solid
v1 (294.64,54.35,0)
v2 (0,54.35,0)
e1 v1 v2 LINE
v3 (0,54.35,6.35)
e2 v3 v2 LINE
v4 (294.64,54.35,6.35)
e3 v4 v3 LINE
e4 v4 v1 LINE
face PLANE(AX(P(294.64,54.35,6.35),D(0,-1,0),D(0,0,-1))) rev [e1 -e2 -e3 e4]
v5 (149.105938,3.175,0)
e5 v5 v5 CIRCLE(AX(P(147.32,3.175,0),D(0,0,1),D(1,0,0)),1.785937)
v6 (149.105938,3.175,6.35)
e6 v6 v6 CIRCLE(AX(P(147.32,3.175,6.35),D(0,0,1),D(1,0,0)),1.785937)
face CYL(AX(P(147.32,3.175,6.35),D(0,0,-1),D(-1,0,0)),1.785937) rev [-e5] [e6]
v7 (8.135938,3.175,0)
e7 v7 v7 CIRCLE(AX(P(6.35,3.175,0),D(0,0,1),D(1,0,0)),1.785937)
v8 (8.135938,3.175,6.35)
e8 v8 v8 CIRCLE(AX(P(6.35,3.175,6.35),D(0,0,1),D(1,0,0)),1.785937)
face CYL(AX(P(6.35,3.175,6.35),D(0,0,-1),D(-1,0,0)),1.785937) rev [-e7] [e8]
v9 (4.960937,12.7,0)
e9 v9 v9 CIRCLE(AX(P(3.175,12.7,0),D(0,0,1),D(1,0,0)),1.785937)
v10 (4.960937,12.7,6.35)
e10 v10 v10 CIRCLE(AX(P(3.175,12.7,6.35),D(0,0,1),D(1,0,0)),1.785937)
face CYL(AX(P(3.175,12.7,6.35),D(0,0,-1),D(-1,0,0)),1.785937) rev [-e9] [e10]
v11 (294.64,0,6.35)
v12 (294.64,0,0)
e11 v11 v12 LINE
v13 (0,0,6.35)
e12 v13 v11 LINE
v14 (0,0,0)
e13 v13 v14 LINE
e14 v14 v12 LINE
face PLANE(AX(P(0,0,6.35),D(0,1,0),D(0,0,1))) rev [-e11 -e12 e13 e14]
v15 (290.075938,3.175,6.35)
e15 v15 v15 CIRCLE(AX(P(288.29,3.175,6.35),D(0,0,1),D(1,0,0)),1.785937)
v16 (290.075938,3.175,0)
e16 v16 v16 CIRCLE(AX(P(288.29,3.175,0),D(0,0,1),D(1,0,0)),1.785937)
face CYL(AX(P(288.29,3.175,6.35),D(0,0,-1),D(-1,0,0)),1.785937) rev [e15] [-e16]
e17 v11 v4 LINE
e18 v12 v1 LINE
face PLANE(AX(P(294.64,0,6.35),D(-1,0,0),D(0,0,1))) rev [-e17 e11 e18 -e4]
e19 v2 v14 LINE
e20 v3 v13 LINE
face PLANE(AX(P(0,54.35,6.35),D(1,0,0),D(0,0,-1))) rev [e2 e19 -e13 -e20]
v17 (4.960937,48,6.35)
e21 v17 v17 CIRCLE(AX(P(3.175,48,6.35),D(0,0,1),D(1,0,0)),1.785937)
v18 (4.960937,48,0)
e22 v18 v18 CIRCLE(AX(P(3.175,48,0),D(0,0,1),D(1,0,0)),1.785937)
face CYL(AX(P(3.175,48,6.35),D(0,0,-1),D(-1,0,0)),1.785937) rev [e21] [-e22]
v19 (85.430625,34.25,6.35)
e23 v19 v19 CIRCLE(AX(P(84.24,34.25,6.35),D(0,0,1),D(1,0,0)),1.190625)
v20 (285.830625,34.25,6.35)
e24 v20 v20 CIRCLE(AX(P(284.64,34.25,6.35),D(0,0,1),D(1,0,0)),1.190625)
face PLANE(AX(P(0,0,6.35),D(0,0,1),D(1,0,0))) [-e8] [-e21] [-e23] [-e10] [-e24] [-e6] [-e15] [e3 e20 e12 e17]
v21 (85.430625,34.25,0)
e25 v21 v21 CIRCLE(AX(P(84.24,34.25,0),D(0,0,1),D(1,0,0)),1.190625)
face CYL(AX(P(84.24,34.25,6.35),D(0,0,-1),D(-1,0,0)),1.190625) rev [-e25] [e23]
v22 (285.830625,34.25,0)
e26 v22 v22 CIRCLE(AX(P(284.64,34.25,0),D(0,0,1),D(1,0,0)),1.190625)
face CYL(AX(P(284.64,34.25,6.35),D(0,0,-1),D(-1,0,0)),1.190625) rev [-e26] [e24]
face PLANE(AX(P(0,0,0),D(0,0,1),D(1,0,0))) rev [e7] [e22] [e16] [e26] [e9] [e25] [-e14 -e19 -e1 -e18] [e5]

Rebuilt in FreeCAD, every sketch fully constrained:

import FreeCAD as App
import Part
import Sketcher
from FreeCAD import Vector
Q = App.Units.Quantity

doc = App.newDocument("Part")
body = doc.addObject("PartDesign::Body", "Body")

# Sketch on XY plane
sketch1 = body.newObject("Sketcher::SketchObject", "Sketch")
sketch1.AttachmentSupport = (doc.getObject("XY_Plane"), [""])
sketch1.MapMode = "FlatFace"
sketch1.addGeometry([
    Part.LineSegment(Vector(0, 54.4, 0), Vector(0, 0, 0)),  # 0
    Part.LineSegment(Vector(0, 0, 0), Vector(294.6, 0, 0)),  # 1
    Part.LineSegment(Vector(294.6, 0, 0), Vector(294.6, 54.4, 0)),  # 2
    Part.LineSegment(Vector(294.6, 54.4, 0), Vector(0, 54.4, 0)),  # 3
    Part.Circle(Vector(6.3, 3.2, 0), Vector(0, 0, 1), 1.8),  # 4
    Part.Circle(Vector(3.2, 12.7, 0), Vector(0, 0, 1), 1.8),  # 5
    Part.Circle(Vector(147.3, 3.2, 0), Vector(0, 0, 1), 1.8),  # 6
    Part.Circle(Vector(288.3, 3.2, 0), Vector(0, 0, 1), 1.8),  # 7
    Part.Circle(Vector(84.2, 34.2, 0), Vector(0, 0, 1), 1.2),  # 8
    Part.Circle(Vector(3.2, 48, 0), Vector(0, 0, 1), 1.8),  # 9
    Part.Circle(Vector(284.6, 34.2, 0), Vector(0, 0, 1), 1.2),  # 10
], False)
sketch1.addConstraint([
    Sketcher.Constraint("Coincident", 0, 2, 1, 1),
    Sketcher.Constraint("Coincident", 1, 2, 2, 1),
    Sketcher.Constraint("Coincident", 2, 2, 3, 1),
    Sketcher.Constraint("Coincident", 3, 2, 0, 1),
    Sketcher.Constraint("Vertical", 0),
    Sketcher.Constraint("Horizontal", 1),
    Sketcher.Constraint("Vertical", 2),
    Sketcher.Constraint("Horizontal", 3),
    Sketcher.Constraint("Coincident", 0, 2, -1, 1),
    Sketcher.Constraint("Equal", 4, 5),
    Sketcher.Constraint("Equal", 5, 6),
    Sketcher.Constraint("Equal", 6, 7),
    Sketcher.Constraint("Equal", 7, 9),
    Sketcher.Constraint("Equal", 8, 10),
    Sketcher.Constraint("Horizontal", 4, 3, 6, 3),
    Sketcher.Constraint("Horizontal", 6, 3, 7, 3),
    Sketcher.Constraint("Horizontal", 8, 3, 10, 3),
    Sketcher.Constraint("Vertical", 5, 3, 9, 3),
    Sketcher.Constraint("Diameter", 4, Q("0.140625 in")),
    Sketcher.Constraint("Diameter", 8, Q("0.09375 in")),
    Sketcher.Constraint("DistanceX", 1, 1, 1, 2, Q("11.6 in")),
    Sketcher.Constraint("DistanceY", -1, 1, 5, 3, Q("0.5 in")),
    Sketcher.Constraint("DistanceX", -1, 1, 6, 3, Q("5.8 in")),
    Sketcher.Constraint("DistanceX", 4, 3, 7, 3, Q("11.1 in")),
    Sketcher.Constraint("DistanceX", -1, 1, 4, 3, Q("0.25 in")),
    Sketcher.Constraint("DistanceY", 9, 3, 3, 2, Q("0.25 in")),
    Sketcher.Constraint("DistanceY", -1, 1, 4, 3, Q("0.125 in")),
    Sketcher.Constraint("DistanceX", -1, 1, 5, 3, Q("0.125 in")),
    Sketcher.Constraint("DistanceY", 0, 2, 0, 1, Q("54.35 mm")),
    Sketcher.Constraint("DistanceX", -1, 1, 8, 3, Q("84.24 mm")),
    Sketcher.Constraint("DistanceY", -1, 1, 8, 3, Q("34.25 mm")),
    Sketcher.Constraint("DistanceX", -1, 1, 10, 3, Q("284.64 mm")),
])
pad1 = body.newObject("PartDesign::Pad", "Pad")
pad1.Profile = sketch1
pad1.Length = Q("0.25 in")

doc.recompute()
